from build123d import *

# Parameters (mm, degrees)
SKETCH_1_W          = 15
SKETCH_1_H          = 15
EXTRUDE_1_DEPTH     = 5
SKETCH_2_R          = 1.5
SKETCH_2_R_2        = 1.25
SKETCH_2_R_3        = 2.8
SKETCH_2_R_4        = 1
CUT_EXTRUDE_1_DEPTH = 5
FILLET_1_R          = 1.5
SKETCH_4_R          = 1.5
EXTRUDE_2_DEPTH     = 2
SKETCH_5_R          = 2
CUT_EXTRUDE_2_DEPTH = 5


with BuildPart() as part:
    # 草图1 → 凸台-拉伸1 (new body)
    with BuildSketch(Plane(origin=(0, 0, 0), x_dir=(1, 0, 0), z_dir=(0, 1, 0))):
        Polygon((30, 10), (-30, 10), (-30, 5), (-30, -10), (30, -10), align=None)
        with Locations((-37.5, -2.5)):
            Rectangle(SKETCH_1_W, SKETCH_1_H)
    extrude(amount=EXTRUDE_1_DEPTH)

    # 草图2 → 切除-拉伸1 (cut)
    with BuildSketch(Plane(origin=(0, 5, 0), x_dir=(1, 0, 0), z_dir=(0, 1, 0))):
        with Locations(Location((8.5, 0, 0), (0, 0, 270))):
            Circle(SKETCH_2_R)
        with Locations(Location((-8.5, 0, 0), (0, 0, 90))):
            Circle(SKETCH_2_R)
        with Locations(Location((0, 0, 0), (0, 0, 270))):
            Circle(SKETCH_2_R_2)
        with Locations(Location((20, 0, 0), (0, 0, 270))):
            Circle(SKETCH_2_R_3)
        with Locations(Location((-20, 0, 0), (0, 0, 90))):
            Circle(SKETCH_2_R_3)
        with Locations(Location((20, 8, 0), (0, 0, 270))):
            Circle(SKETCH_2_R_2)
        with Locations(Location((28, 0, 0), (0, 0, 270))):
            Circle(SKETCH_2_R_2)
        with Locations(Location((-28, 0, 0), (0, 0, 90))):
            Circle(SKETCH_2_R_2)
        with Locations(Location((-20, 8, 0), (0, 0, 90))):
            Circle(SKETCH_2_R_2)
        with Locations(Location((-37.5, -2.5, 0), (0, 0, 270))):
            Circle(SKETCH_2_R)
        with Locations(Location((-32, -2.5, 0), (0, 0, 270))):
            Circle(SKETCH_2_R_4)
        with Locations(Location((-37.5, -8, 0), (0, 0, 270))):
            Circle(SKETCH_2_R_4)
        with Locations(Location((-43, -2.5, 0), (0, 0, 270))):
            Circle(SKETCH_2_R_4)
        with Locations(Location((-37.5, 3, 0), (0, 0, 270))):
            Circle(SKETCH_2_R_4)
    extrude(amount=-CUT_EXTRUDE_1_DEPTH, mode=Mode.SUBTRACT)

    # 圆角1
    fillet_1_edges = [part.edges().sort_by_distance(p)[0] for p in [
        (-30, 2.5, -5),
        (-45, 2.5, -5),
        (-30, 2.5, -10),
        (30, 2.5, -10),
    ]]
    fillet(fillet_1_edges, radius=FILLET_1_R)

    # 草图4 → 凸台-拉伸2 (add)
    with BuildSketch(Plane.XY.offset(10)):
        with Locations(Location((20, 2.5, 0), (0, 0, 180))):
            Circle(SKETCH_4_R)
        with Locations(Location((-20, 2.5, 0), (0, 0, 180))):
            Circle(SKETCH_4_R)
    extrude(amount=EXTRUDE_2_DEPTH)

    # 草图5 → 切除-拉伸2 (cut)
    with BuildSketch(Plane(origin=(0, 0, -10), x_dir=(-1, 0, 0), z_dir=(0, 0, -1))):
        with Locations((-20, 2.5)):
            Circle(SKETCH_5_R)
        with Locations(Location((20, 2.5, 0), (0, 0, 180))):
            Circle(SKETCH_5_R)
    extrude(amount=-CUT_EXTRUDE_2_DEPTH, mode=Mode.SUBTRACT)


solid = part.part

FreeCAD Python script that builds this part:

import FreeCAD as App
import Part
import Sketcher

V = App.Vector


def edges_at(feature, points):
    """Names of the edges that pass closest to the given points."""
    edges = feature.Shape.Edges
    near = lambda p: min(range(len(edges)), key=lambda i: edges[i].distToShape(Part.Vertex(*p))[0])
    return sorted({f"Edge{near(p) + 1}" for p in points})

doc = App.newDocument("Part")
params = doc.addObject("Spreadsheet::Sheet", "Params")
for row, (alias, value) in enumerate([
    ("sketch1_width", "60 mm"),
    ("sketch1_width2", "15 mm"),
    ("sketch1_height", "5 mm"),
    ("pad1_length", "5 mm"),
    ("sketch2_diameter", "3 mm"),
    ("sketch2_diameter2", "2 mm"),
    ("sketch2_diameter3", "2.5 mm"),
    ("sketch2_diameter4", "5.6 mm"),
    ("pocket1_length", "5 mm"),
    ("fillet_radius", "1.5 mm"),
    ("sketch3_diameter", "3 mm"),
    ("pad2_length", "2 mm"),
    ("sketch4_diameter", "4 mm"),
    ("pocket2_length", "5 mm"),
], start=1):
    params.set(f"A{row}", alias)
    params.set(f"B{row}", "=" + value)
    params.setAlias(f"B{row}", alias)

body = doc.addObject("PartDesign::Body", "Body")

# Sketch on XZ plane
sketch1 = doc.addObject("Sketcher::SketchObject", "Sketch")
body.addObject(sketch1)
sketch1.AttachmentSupport = (doc.XZ_Plane, [""])
sketch1.MapMode = "FlatFace"
sketch1.addGeometry([
    Part.LineSegment(V(30, -10, 0), V(-30, -10, 0)),  # 0
    Part.LineSegment(V(-30, -10, 0), V(-30, -5, 0)),  # 1
    Part.LineSegment(V(-30, -5, 0), V(-45, -5, 0)),  # 2
    Part.LineSegment(V(-45, -5, 0), V(-45, 10, 0)),  # 3
    Part.LineSegment(V(-45, 10, 0), V(30, 10, 0)),  # 4
    Part.LineSegment(V(30, 10, 0), V(30, -10, 0)),  # 5
], False)
sketch1.addConstraint([
    Sketcher.Constraint("Coincident", 0, 2, 1, 1),
    Sketcher.Constraint("Coincident", 1, 2, 2, 1),
    Sketcher.Constraint("Coincident", 2, 2, 3, 1),
    Sketcher.Constraint("Coincident", 3, 2, 4, 1),
    Sketcher.Constraint("Coincident", 4, 2, 5, 1),
    Sketcher.Constraint("Coincident", 5, 2, 0, 1),
    Sketcher.Constraint("Horizontal", 0),
    Sketcher.Constraint("Vertical", 1),
    Sketcher.Constraint("Horizontal", 2),
    Sketcher.Constraint("Vertical", 3),
    Sketcher.Constraint("Horizontal", 4),
    Sketcher.Constraint("Vertical", 5),
    Sketcher.Constraint("Symmetric", 0, 2, 4, 2, -1, 1),
    Sketcher.Constraint("Equal", 2, 3),
    Sketcher.Constraint("DistanceX", 0, 2, 0, 1, 60.0),
    Sketcher.Constraint("DistanceX", 2, 2, 2, 1, 15.0),
    Sketcher.Constraint("DistanceY", 1, 1, 1, 2, 5.0),
])
sketch1.setExpression("Constraints[14]", "Params.sketch1_width")
sketch1.setExpression("Constraints[15]", "Params.sketch1_width2")
sketch1.setExpression("Constraints[16]", "Params.sketch1_height")
pad1 = doc.addObject("PartDesign::Pad", "Pad")
body.addObject(pad1)
pad1.Profile = sketch1
pad1.setExpression("Length", "Params.pad1_length")
pad1.Reversed = True

# Sketch on XZ plane
sketch2 = doc.addObject("Sketcher::SketchObject", "Sketch001")
body.addObject(sketch2)
sketch2.AttachmentSupport = (doc.XZ_Plane, [""])
sketch2.MapMode = "FlatFace"
sketch2.AttachmentOffset = App.Placement(V(0, 0, -5), App.Rotation())
sketch2.addGeometry([
    Part.Circle(V(8.5, 0, 0), V(0, 0, 1), 1.5),  # 0
    Part.Circle(V(-8.5, 0, 0), V(0, 0, 1), 1.5),  # 1
    Part.Circle(V(0, 0, 0), V(0, 0, 1), 1.2),  # 2
    Part.Circle(V(20, 0, 0), V(0, 0, 1), 2.8),  # 3
    Part.Circle(V(-20, 0, 0), V(0, 0, 1), 2.8),  # 4
    Part.Circle(V(20, -8, 0), V(0, 0, 1), 1.2),  # 5
    Part.Circle(V(28, 0, 0), V(0, 0, 1), 1.2),  # 6
    Part.Circle(V(-28, 0, 0), V(0, 0, 1), 1.2),  # 7
    Part.Circle(V(-20, -8, 0), V(0, 0, 1), 1.2),  # 8
    Part.Circle(V(-37.5, 2.5, 0), V(0, 0, 1), 1.5),  # 9
    Part.Circle(V(-32, 2.5, 0), V(0, 0, 1), 1),  # 10
    Part.Circle(V(-37.5, 8, 0), V(0, 0, 1), 1),  # 11
    Part.Circle(V(-43, 2.5, 0), V(0, 0, 1), 1),  # 12
    Part.Circle(V(-37.5, -3, 0), V(0, 0, 1), 1),  # 13
], False)
sketch2.addConstraint([
    Sketcher.Constraint("Coincident", 2, 3, -1, 1),
    Sketcher.Constraint("Equal", 0, 1),
    Sketcher.Constraint("Equal", 3, 4),
    Sketcher.Constraint("Equal", 2, 5),
    Sketcher.Constraint("Equal", 5, 6),
    Sketcher.Constraint("Equal", 6, 7),
    Sketcher.Constraint("Equal", 7, 8),
    Sketcher.Constraint("Equal", 1, 9),
    Sketcher.Constraint("Equal", 10, 11),
    Sketcher.Constraint("Equal", 11, 12),
    Sketcher.Constraint("Equal", 12, 13),
    Sketcher.Constraint("Symmetric", 0, 3, 1, 3, -1, 1),
    Sketcher.Constraint("Symmetric", 3, 3, 4, 3, -1, 1),
    Sketcher.Constraint("Symmetric", 6, 3, 7, 3, -1, 1),
    Sketcher.Constraint("Symmetric", 5, 3, 8, 3, -2),
    Sketcher.Constraint("PointOnObject", 0, 3, -1),
    Sketcher.Constraint("PointOnObject", 3, 3, -1),
    Sketcher.Constraint("PointOnObject", 6, 3, -1),
    Sketcher.Constraint("Horizontal", 9, 3, 10, 3),
    Sketcher.Constraint("Horizontal", 10, 3, 12, 3),
    Sketcher.Constraint("Vertical", 3, 3, 5, 3),
    Sketcher.Constraint("Vertical", 9, 3, 11, 3),
    Sketcher.Constraint("Vertical", 11, 3, 13, 3),
    Sketcher.Constraint("Diameter", 0, 3.0),
    Sketcher.Constraint("Diameter", 10, 2.0),
    Sketcher.Constraint("Diameter", 2, 2.5),
    Sketcher.Constraint("Diameter", 3, 5.6),
    Sketcher.Constraint("DistanceX", -1, 1, 3, 3, 20.0),
    Sketcher.Constraint("DistanceY", 5, 3, -1, 1, 8.0),
    Sketcher.Constraint("DistanceX", -1, 1, 6, 3, 28.0),
    Sketcher.Constraint("DistanceX", 10, 3, -1, 1, 32.0),
    Sketcher.Constraint("DistanceY", -1, 1, 11, 3, 8.0),
    Sketcher.Constraint("DistanceX", 12, 3, -1, 1, 43.0),
    Sketcher.Constraint("DistanceY", 13, 3, -1, 1, 3.0),
    Sketcher.Constraint("DistanceX", 1, 3, 0, 3, 17.0),
    Sketcher.Constraint("DistanceX", 9, 3, 1, 3, 29.0),
    Sketcher.Constraint("DistanceY", -1, 1, 9, 3, 2.5),
])
sketch2.setExpression("Constraints[23]", "Params.sketch2_diameter")
sketch2.setExpression("Constraints[24]", "Params.sketch2_diameter2")
sketch2.setExpression("Constraints[25]", "Params.sketch2_diameter3")
sketch2.setExpression("Constraints[26]", "Params.sketch2_diameter4")
pocket1 = doc.addObject("PartDesign::Pocket", "Pocket")
body.addObject(pocket1)
pocket1.Profile = sketch2
pocket1.setExpression("Length", "Params.pocket1_length")
pocket1.Reversed = True
doc.recompute()

fillet = doc.addObject("PartDesign::Fillet", "Fillet")
body.addObject(fillet)
fillet.Base = (pocket1, edges_at(pocket1, [
    (-30, 2.5, -5),
    (-45, 2.5, -5),
    (-30, 2.5, -10),
    (30, 2.5, -10),
]))
fillet.setExpression("Radius", "Params.fillet_radius")

# Sketch on XY plane
sketch3 = doc.addObject("Sketcher::SketchObject", "Sketch002")
body.addObject(sketch3)
sketch3.AttachmentSupport = (doc.XY_Plane, [""])
sketch3.MapMode = "FlatFace"
sketch3.AttachmentOffset = App.Placement(V(0, 0, 10), App.Rotation())
sketch3.addGeometry([
    Part.Circle(V(20, 2.5, 0), V(0, 0, 1), 1.5),
    Part.Circle(V(-20, 2.5, 0), V(0, 0, 1), 1.5),
], False)
sketch3.addConstraint([
    Sketcher.Constraint("Equal", 0, 1),
    Sketcher.Constraint("Symmetric", 0, 3, 1, 3, -2),
    Sketcher.Constraint("Diameter", 0, 3.0),
    Sketcher.Constraint("DistanceX", -1, 1, 0, 3, 20.0),
    Sketcher.Constraint("DistanceY", -1, 1, 0, 3, 2.5),
])
sketch3.setExpression("Constraints[2]", "Params.sketch3_diameter")
pad2 = doc.addObject("PartDesign::Pad", "Pad001")
body.addObject(pad2)
pad2.Profile = sketch3
pad2.setExpression("Length", "Params.pad2_length")

# Sketch on XY plane
sketch4 = doc.addObject("Sketcher::SketchObject", "Sketch003")
body.addObject(sketch4)
sketch4.AttachmentSupport = (doc.XY_Plane, [""])
sketch4.MapMode = "FlatFace"
sketch4.AttachmentOffset = App.Placement(V(0, 0, -10), App.Rotation())
sketch4.addGeometry([
    Part.Circle(V(20, 2.5, 0), V(0, 0, 1), 2),
    Part.Circle(V(-20, 2.5, 0), V(0, 0, 1), 2),
], False)
sketch4.addConstraint([
    Sketcher.Constraint("Equal", 0, 1),
    Sketcher.Constraint("Symmetric", 0, 3, 1, 3, -2),
    Sketcher.Constraint("Diameter", 0, 4.0),
    Sketcher.Constraint("DistanceX", -1, 1, 0, 3, 20.0),
    Sketcher.Constraint("DistanceY", -1, 1, 0, 3, 2.5),
])
sketch4.setExpression("Constraints[2]", "Params.sketch4_diameter")
pocket2 = doc.addObject("PartDesign::Pocket", "Pocket001")
body.addObject(pocket2)
pocket2.Profile = sketch4
pocket2.setExpression("Length", "Params.pocket2_length")
pocket2.Reversed = True

doc.recompute()
